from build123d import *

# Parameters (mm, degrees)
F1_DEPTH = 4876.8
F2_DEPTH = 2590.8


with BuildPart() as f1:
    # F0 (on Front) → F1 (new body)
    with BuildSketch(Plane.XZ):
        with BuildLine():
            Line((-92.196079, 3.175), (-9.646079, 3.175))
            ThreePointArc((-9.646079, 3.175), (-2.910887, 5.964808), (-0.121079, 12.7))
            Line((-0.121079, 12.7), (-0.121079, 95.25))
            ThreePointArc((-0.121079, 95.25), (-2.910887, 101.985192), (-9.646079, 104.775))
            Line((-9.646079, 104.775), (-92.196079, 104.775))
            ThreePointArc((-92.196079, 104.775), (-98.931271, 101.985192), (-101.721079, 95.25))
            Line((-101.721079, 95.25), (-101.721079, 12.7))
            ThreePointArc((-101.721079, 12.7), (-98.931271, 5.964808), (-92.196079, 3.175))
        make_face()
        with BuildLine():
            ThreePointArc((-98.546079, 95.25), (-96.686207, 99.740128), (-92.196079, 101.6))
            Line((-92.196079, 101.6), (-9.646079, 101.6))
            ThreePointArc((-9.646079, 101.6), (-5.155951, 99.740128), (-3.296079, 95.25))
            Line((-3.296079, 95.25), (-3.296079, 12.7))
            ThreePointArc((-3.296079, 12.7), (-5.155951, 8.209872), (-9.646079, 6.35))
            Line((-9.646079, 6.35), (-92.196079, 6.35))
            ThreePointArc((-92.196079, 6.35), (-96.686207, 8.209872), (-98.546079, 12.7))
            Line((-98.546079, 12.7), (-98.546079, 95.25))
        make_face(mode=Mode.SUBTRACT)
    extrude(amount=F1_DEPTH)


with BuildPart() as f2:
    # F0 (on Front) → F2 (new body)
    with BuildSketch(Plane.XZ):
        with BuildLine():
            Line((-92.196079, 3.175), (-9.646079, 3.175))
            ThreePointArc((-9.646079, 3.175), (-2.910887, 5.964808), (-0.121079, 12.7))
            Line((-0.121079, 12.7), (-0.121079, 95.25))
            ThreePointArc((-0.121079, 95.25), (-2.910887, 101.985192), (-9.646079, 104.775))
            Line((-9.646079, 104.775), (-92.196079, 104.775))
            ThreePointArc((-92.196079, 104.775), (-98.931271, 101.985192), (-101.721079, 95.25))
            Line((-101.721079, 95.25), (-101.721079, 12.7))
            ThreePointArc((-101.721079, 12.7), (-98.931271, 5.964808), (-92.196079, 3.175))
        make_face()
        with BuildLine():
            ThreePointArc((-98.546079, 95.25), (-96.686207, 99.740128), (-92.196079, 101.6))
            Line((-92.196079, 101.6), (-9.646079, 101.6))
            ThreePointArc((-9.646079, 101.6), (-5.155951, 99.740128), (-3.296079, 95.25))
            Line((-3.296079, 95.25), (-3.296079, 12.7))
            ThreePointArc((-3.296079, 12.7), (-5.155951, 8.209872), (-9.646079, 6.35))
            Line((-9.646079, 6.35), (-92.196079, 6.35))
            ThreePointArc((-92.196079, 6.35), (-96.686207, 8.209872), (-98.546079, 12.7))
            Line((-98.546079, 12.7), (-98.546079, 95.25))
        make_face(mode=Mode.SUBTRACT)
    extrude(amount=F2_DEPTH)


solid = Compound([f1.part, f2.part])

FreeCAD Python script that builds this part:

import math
import FreeCAD as App
import Part
import Sketcher

V = App.Vector
Q = App.Units.Quantity

doc = App.newDocument("Part")
body = doc.addObject("PartDesign::Body", "Body")

sketch1 = body.newObject("Sketcher::SketchObject", "Sketch")
sketch1.AttachmentSupport = (doc.getObject("XZ_Plane"), [""])
sketch1.MapMode = "FlatFace"
sketch1.addGeometry([
    Part.LineSegment(V(-92, 3, 0), V(-10, 3, 0)),
    Part.ArcOfCircle(Part.Circle(V(-10, 13, 0), V(0, 0, 1), 10), math.radians(-90), math.radians(0)),
    Part.LineSegment(V(0, 13, 0), V(0, 95, 0)),
    Part.ArcOfCircle(Part.Circle(V(-10, 95, 0), V(0, 0, 1), 10), math.radians(0), math.radians(90)),
    Part.LineSegment(V(-10, 105, 0), V(-92, 105, 0)),
    Part.ArcOfCircle(Part.Circle(V(-92, 95, 0), V(0, 0, 1), 10), math.radians(90), math.radians(180)),
    Part.LineSegment(V(-102, 95, 0), V(-102, 13, 0)),
    Part.ArcOfCircle(Part.Circle(V(-92, 13, 0), V(0, 0, 1), 10), math.radians(-180), math.radians(-90)),
    Part.LineSegment(V(-99, 13, 0), V(-99, 95, 0)),
    Part.ArcOfCircle(Part.Circle(V(-92, 95, 0), V(0, 0, 1), 6), math.radians(90), math.radians(180)),
    Part.LineSegment(V(-92, 102, 0), V(-10, 102, 0)),
    Part.ArcOfCircle(Part.Circle(V(-10, 95, 0), V(0, 0, 1), 6), math.radians(0), math.radians(90)),
    Part.LineSegment(V(-3, 95, 0), V(-3, 13, 0)),
    Part.ArcOfCircle(Part.Circle(V(-10, 13, 0), V(0, 0, 1), 6), math.radians(-90), math.radians(0)),
    Part.LineSegment(V(-10, 6, 0), V(-92, 6, 0)),
    Part.ArcOfCircle(Part.Circle(V(-92, 13, 0), V(0, 0, 1), 6), math.radians(-180), math.radians(-90)),
], False)
sketch1.addConstraint([
    Sketcher.Constraint("Tangent", 0, 2, 1, 1),
    Sketcher.Constraint("Tangent", 1, 2, 2, 1),
    Sketcher.Constraint("Tangent", 2, 2, 3, 1),
    Sketcher.Constraint("Tangent", 3, 2, 4, 1),
    Sketcher.Constraint("Tangent", 4, 2, 5, 1),
    Sketcher.Constraint("Tangent", 5, 2, 6, 1),
    Sketcher.Constraint("Tangent", 6, 2, 7, 1),
    Sketcher.Constraint("Tangent", 7, 2, 0, 1),
    Sketcher.Constraint("Tangent", 8, 2, 9, 2),
    Sketcher.Constraint("Tangent", 9, 1, 10, 1),
    Sketcher.Constraint("Tangent", 10, 2, 11, 2),
    Sketcher.Constraint("Tangent", 11, 1, 12, 1),
    Sketcher.Constraint("Tangent", 12, 2, 13, 2),
    Sketcher.Constraint("Tangent", 13, 1, 14, 1),
    Sketcher.Constraint("Tangent", 14, 2, 15, 2),
    Sketcher.Constraint("Tangent", 15, 1, 8, 1),
    Sketcher.Constraint("Horizontal", 0),
    Sketcher.Constraint("Vertical", 2),
    Sketcher.Constraint("Horizontal", 4),
    Sketcher.Constraint("Vertical", 6),
    Sketcher.Constraint("Vertical", 8),
    Sketcher.Constraint("Horizontal", 10),
    Sketcher.Constraint("Vertical", 12),
    Sketcher.Constraint("Horizontal", 14),
    Sketcher.Constraint("Coincident", 9, 3, 5, 3),
    Sketcher.Constraint("Coincident", 11, 3, 3, 3),
    Sketcher.Constraint("Coincident", 13, 3, 1, 3),
    Sketcher.Constraint("Equal", 1, 3),
    Sketcher.Constraint("Equal", 3, 5),
    Sketcher.Constraint("Equal", 5, 7),
    Sketcher.Constraint("Equal", 13, 15),
    Sketcher.Constraint("Equal", 14, 2),
    Sketcher.Constraint("Radius", 9, Q("0.25 in")),
    Sketcher.Constraint("DistanceY", -1, 1, 9, 1, Q("4 in")),
    Sketcher.Constraint("Radius", 1, Q("0.375 in")),
    Sketcher.Constraint("DistanceX", 0, 1, 0, 2, Q("3.25 in")),
    Sketcher.Constraint("DistanceX", 1, 3, -1, 1, 9.646079),
])
pad1 = body.newObject("PartDesign::Pad", "Pad")
pad1.Profile = sketch1
pad1.Length = Q("192 in")
body2 = doc.addObject("PartDesign::Body", "Body001")

sketch2 = body2.newObject("Sketcher::SketchObject", "Sketch001")
sketch2.AttachmentSupport = (doc.getObject("XZ_Plane001"), [""])
sketch2.MapMode = "FlatFace"
sketch2.addGeometry([
    Part.LineSegment(V(-92, 3, 0), V(-10, 3, 0)),
    Part.ArcOfCircle(Part.Circle(V(-10, 13, 0), V(0, 0, 1), 10), math.radians(-90), math.radians(0)),
    Part.LineSegment(V(0, 13, 0), V(0, 95, 0)),
    Part.ArcOfCircle(Part.Circle(V(-10, 95, 0), V(0, 0, 1), 10), math.radians(0), math.radians(90)),
    Part.LineSegment(V(-10, 105, 0), V(-92, 105, 0)),
    Part.ArcOfCircle(Part.Circle(V(-92, 95, 0), V(0, 0, 1), 10), math.radians(90), math.radians(180)),
    Part.LineSegment(V(-102, 95, 0), V(-102, 13, 0)),
    Part.ArcOfCircle(Part.Circle(V(-92, 13, 0), V(0, 0, 1), 10), math.radians(-180), math.radians(-90)),
    Part.LineSegment(V(-99, 13, 0), V(-99, 95, 0)),
    Part.ArcOfCircle(Part.Circle(V(-92, 95, 0), V(0, 0, 1), 6), math.radians(90), math.radians(180)),
    Part.LineSegment(V(-92, 102, 0), V(-10, 102, 0)),
    Part.ArcOfCircle(Part.Circle(V(-10, 95, 0), V(0, 0, 1), 6), math.radians(0), math.radians(90)),
    Part.LineSegment(V(-3, 95, 0), V(-3, 13, 0)),
    Part.ArcOfCircle(Part.Circle(V(-10, 13, 0), V(0, 0, 1), 6), math.radians(-90), math.radians(0)),
    Part.LineSegment(V(-10, 6, 0), V(-92, 6, 0)),
    Part.ArcOfCircle(Part.Circle(V(-92, 13, 0), V(0, 0, 1), 6), math.radians(-180), math.radians(-90)),
], False)
sketch2.addConstraint([
    Sketcher.Constraint("Tangent", 0, 2, 1, 1),
    Sketcher.Constraint("Tangent", 1, 2, 2, 1),
    Sketcher.Constraint("Tangent", 2, 2, 3, 1),
    Sketcher.Constraint("Tangent", 3, 2, 4, 1),
    Sketcher.Constraint("Tangent", 4, 2, 5, 1),
    Sketcher.Constraint("Tangent", 5, 2, 6, 1),
    Sketcher.Constraint("Tangent", 6, 2, 7, 1),
    Sketcher.Constraint("Tangent", 7, 2, 0, 1),
    Sketcher.Constraint("Tangent", 8, 2, 9, 2),
    Sketcher.Constraint("Tangent", 9, 1, 10, 1),
    Sketcher.Constraint("Tangent", 10, 2, 11, 2),
    Sketcher.Constraint("Tangent", 11, 1, 12, 1),
    Sketcher.Constraint("Tangent", 12, 2, 13, 2),
    Sketcher.Constraint("Tangent", 13, 1, 14, 1),
    Sketcher.Constraint("Tangent", 14, 2, 15, 2),
    Sketcher.Constraint("Tangent", 15, 1, 8, 1),
    Sketcher.Constraint("Horizontal", 0),
    Sketcher.Constraint("Vertical", 2),
    Sketcher.Constraint("Horizontal", 4),
    Sketcher.Constraint("Vertical", 6),
    Sketcher.Constraint("Vertical", 8),
    Sketcher.Constraint("Horizontal", 10),
    Sketcher.Constraint("Vertical", 12),
    Sketcher.Constraint("Horizontal", 14),
    Sketcher.Constraint("Coincident", 9, 3, 5, 3),
    Sketcher.Constraint("Coincident", 11, 3, 3, 3),
    Sketcher.Constraint("Coincident", 13, 3, 1, 3),
    Sketcher.Constraint("Equal", 1, 3),
    Sketcher.Constraint("Equal", 3, 5),
    Sketcher.Constraint("Equal", 5, 7),
    Sketcher.Constraint("Equal", 13, 15),
    Sketcher.Constraint("Equal", 14, 2),
    Sketcher.Constraint("Radius", 9, Q("0.25 in")),
    Sketcher.Constraint("DistanceY", -1, 1, 9, 1, Q("4 in")),
    Sketcher.Constraint("Radius", 1, Q("0.375 in")),
    Sketcher.Constraint("DistanceX", 0, 1, 0, 2, Q("3.25 in")),
    Sketcher.Constraint("DistanceX", 1, 3, -1, 1, 9.646079),
])
pad2 = body2.newObject("PartDesign::Pad", "Pad001")
pad2.Profile = sketch2
pad2.Length = Q("102 in")

doc.recompute()
